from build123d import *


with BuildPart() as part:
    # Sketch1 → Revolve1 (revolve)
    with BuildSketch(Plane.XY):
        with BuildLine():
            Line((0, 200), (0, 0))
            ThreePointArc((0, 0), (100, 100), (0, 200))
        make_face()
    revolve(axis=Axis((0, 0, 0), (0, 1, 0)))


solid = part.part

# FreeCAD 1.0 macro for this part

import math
import FreeCAD as App
import Part
import Sketcher

doc = App.newDocument("Part")
body = doc.addObject("PartDesign::Body", "Body")

# Sketch on XY plane
sketch1 = body.newObject("Sketcher::SketchObject", "Sketch")
sketch1.AttachmentSupport = (doc.getObject("XY_Plane"), [""])
sketch1.MapMode = "FlatFace"
sketch1.addGeometry(Part.LineSegment(App.Vector(0, 200, 0), App.Vector(0, 0, 0)), False)
sketch1.addGeometry(Part.ArcOfCircle(Part.Circle(App.Vector(0, 100, 0), App.Vector(0, 0, 1), 100), math.radians(-90), math.radians(90)), False)
sketch1.addConstraint(Sketcher.Constraint("Coincident", 0, 1, 1, 2))
sketch1.addConstraint(Sketcher.Constraint("Coincident", 1, 1, 0, 2))
sketch1.addConstraint(Sketcher.Constraint("Vertical", 0))
sketch1.addConstraint(Sketcher.Constraint("Coincident", 1, 1, -1, 1))
sketch1.addConstraint(Sketcher.Constraint("PointOnObject", 1, 3, -2))
sketch1.addConstraint(Sketcher.Constraint("Radius", 1, 100.0))
revolution = body.newObject("PartDesign::Revolution", "Revolution")
revolution.Profile = sketch1
revolution.ReferenceAxis = (sketch1, ["V_Axis"])
revolution.Angle = 360

doc.recompute()
